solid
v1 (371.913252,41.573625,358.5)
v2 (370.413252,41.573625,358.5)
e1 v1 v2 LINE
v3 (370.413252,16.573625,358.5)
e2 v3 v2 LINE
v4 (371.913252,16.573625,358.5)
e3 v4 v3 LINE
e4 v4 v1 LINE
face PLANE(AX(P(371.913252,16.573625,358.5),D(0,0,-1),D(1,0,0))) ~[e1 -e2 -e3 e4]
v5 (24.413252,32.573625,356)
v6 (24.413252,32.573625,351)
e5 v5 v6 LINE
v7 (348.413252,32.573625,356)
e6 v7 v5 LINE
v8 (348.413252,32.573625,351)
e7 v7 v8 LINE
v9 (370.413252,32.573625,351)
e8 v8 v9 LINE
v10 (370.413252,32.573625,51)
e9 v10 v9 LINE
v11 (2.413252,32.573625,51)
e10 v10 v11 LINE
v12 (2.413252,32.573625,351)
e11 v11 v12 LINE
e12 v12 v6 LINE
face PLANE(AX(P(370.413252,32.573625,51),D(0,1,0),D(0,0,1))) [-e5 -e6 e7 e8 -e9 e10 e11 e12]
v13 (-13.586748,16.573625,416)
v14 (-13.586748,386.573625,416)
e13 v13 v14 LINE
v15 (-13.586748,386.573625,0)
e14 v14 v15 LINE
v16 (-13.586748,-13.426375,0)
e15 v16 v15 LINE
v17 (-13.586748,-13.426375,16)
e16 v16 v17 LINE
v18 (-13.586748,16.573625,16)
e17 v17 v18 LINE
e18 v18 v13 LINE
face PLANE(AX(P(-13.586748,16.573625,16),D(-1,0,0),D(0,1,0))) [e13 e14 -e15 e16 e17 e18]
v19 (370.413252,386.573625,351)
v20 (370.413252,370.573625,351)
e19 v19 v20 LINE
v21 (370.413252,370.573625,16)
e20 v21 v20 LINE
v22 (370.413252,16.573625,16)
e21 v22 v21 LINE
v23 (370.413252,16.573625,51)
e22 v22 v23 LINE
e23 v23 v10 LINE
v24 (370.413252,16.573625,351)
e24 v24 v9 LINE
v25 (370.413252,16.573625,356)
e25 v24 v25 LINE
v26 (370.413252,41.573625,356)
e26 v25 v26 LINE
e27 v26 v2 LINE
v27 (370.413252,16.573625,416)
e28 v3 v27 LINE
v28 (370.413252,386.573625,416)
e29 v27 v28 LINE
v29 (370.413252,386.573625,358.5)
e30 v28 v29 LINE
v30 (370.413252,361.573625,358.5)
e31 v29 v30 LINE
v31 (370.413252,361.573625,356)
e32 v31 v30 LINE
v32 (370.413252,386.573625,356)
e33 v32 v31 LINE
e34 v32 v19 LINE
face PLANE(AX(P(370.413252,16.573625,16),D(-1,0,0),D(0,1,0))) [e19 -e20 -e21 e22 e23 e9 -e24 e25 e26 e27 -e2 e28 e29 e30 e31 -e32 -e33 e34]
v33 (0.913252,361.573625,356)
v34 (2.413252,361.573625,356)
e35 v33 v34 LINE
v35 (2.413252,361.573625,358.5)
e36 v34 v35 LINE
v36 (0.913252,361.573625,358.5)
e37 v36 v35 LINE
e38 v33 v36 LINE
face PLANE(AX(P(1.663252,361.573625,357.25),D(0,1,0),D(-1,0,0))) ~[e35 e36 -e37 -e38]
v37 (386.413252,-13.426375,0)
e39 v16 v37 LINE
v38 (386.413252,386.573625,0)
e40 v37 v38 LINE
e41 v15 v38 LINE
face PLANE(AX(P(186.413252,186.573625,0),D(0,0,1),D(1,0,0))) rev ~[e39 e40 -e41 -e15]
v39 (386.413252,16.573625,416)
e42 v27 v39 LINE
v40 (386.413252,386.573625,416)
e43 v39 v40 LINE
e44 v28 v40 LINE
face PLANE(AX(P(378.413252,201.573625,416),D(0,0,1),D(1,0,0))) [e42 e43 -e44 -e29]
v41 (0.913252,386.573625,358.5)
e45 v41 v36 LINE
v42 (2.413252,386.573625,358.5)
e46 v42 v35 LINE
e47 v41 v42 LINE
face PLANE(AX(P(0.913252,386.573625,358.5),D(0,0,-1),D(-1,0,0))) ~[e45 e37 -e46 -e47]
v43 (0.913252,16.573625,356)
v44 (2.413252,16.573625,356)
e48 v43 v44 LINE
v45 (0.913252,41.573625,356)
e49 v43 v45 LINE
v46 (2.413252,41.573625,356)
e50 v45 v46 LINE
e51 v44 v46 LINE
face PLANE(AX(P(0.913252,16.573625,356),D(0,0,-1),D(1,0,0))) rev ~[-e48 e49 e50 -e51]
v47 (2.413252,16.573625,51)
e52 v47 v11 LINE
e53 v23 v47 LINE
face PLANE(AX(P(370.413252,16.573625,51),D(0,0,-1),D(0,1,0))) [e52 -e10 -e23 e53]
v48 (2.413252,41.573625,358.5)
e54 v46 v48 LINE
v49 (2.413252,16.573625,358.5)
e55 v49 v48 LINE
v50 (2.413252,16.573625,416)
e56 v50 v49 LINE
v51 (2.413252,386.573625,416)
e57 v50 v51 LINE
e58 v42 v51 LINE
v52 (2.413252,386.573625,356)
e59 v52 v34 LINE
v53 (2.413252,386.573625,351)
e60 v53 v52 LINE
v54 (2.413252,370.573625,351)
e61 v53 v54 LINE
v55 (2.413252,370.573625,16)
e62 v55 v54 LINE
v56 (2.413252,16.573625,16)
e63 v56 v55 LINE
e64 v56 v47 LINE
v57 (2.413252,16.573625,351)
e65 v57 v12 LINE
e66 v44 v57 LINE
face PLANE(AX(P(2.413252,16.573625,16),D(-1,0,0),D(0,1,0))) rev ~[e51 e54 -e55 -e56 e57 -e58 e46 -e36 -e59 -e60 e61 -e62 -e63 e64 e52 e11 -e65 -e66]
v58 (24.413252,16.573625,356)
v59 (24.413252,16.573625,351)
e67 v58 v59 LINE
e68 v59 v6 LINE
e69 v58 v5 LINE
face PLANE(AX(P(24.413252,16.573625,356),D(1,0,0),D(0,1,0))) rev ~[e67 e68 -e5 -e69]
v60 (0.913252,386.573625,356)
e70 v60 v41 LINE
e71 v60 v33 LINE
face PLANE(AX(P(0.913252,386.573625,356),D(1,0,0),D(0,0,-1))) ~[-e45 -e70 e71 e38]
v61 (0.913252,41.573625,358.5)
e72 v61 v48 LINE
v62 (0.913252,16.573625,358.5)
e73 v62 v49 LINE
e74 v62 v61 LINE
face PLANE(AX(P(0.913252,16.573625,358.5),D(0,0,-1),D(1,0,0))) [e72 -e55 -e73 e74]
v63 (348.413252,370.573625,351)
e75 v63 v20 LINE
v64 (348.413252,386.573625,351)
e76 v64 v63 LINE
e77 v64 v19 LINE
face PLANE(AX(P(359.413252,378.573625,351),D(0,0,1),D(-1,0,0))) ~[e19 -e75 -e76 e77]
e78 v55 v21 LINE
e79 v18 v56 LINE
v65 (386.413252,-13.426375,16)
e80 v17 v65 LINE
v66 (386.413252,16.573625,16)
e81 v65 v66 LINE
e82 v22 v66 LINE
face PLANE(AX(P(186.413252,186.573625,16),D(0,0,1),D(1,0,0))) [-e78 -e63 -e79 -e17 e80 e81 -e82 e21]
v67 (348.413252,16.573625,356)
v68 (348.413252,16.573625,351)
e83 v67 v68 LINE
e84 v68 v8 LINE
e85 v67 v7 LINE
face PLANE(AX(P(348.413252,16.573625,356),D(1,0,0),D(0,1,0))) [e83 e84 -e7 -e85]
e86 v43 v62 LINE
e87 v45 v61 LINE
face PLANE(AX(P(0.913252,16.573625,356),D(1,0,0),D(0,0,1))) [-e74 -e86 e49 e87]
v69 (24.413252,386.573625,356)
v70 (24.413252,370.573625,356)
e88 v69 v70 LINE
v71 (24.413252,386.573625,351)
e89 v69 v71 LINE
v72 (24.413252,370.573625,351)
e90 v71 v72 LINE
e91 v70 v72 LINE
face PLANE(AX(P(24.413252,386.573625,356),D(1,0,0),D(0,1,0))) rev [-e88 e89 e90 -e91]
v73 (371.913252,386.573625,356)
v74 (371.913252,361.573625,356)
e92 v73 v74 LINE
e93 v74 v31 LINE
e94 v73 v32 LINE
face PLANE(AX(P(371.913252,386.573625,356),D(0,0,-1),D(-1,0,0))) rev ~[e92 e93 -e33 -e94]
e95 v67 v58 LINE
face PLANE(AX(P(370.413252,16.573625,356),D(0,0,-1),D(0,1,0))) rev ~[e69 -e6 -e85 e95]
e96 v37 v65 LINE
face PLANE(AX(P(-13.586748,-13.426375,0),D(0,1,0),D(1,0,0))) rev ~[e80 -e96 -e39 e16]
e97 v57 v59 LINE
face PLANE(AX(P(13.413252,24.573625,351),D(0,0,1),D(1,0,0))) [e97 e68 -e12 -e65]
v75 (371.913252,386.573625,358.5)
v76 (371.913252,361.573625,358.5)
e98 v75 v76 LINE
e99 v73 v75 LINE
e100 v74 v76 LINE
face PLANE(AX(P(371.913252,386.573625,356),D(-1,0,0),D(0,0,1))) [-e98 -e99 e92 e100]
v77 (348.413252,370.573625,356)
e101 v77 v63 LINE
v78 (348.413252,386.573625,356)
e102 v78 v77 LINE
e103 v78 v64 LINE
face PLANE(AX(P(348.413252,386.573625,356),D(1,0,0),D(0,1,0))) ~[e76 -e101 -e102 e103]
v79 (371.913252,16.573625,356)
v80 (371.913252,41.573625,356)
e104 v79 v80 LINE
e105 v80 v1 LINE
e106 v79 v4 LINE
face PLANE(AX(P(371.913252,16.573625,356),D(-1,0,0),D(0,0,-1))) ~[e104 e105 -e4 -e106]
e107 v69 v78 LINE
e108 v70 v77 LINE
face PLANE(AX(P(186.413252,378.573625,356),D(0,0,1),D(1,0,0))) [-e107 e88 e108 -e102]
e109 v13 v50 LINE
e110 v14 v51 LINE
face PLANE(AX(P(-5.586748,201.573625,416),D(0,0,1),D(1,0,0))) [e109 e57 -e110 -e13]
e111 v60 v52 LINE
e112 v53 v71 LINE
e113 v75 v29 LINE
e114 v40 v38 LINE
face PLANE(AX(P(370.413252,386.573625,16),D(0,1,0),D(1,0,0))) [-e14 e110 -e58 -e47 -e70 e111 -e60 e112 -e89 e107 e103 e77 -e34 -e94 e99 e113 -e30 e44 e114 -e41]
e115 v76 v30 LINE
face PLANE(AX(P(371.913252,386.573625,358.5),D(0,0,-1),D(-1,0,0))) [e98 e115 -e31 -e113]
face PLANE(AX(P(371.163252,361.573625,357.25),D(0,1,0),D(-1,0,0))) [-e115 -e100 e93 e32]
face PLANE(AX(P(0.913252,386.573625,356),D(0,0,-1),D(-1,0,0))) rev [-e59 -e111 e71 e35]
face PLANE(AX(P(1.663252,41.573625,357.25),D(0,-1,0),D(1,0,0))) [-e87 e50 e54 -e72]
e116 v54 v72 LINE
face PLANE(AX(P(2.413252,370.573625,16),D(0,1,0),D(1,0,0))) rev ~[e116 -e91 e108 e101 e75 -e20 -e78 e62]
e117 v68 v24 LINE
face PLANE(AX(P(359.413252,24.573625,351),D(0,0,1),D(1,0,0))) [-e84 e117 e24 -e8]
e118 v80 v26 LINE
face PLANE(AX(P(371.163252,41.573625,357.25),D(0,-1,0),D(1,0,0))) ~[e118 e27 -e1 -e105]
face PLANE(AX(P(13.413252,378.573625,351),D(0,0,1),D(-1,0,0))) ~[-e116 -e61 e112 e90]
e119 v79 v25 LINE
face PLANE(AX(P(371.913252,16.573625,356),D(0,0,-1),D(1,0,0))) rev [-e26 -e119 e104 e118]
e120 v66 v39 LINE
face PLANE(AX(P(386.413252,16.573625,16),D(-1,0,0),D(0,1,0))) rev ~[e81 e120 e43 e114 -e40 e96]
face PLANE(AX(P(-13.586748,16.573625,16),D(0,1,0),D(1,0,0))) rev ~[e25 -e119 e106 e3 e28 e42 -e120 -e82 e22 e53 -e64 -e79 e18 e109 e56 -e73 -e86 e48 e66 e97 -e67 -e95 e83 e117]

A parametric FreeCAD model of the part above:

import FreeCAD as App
import Part
import Sketcher


def add_polygon(sketch, points):
    """Adds a closed chain of lines whose ends are joined by coincident constraints."""
    first, n = sketch.GeometryCount, len(points)
    for a, b in zip(points, points[1:] + points[:1]):
        sketch.addGeometry(Part.LineSegment(App.Vector(*a, 0), App.Vector(*b, 0)), False)
    for i in range(n):
        sketch.addConstraint(Sketcher.Constraint("Coincident", first + i, 2, first + (i + 1) % n, 1))

doc = App.newDocument("Part")
params = doc.addObject("Spreadsheet::Sheet", "Params")
for row, (alias, value) in enumerate([
    ("sketch1_width", "400 mm"),
    ("pad1_length", "16 mm"),
    ("sketch2_width", "16 mm"),
    ("sketch2_height", "370 mm"),
    ("pad2_length", "400 mm"),
    ("sketch3_width", "16 mm"),
    ("sketch3_height", "370 mm"),
    ("pad3_length", "400 mm"),
    ("sketch4_width", "368 mm"),
    ("sketch4_height", "16 mm"),
    ("pad4_length", "340 mm"),
    ("sketch5_width", "16 mm"),
    ("sketch5_height", "305 mm"),
    ("sketch6_width", "22 mm"),
    ("sketch6_height", "16 mm"),
    ("pocket1_length", "5 mm"),
    ("sketch7_width", "22 mm"),
    ("sketch7_height", "16 mm"),
    ("pocket2_length", "5 mm"),
    ("sketch8_width", "1.5 mm"),
    ("sketch8_height", "2.5 mm"),
    ("pocket3_length", "25 mm"),
    ("sketch9_width", "1.5 mm"),
    ("sketch9_height", "2.5 mm"),
    ("pocket4_length", "25 mm"),
    ("sketch10_width", "1.5 mm"),
    ("sketch10_height", "2.5 mm"),
    ("pocket5_length", "25 mm"),
    ("sketch11_width", "1.5 mm"),
    ("sketch11_height", "2.5 mm"),
    ("pocket6_length", "25 mm"),
    ("sketch12_width", "1.5 mm"),
    ("sketch12_height", "2.5 mm"),
    ("pocket7_length", "25 mm"),
], start=1):
    params.set(f"A{row}", alias)
    params.set(f"B{row}", "=" + value)
    params.setAlias(f"B{row}", alias)

body = doc.addObject("PartDesign::Body", "Body")

# Sketch on XY plane
sketch1 = body.newObject("Sketcher::SketchObject", "Sketch")
sketch1.AttachmentSupport = (doc.getObject("XY_Plane"), [""])
sketch1.MapMode = "FlatFace"
add_polygon(sketch1, [(-14, 387), (-14, -13), (386, -13), (386, 387)])  # lines 0-3
sketch1.addConstraint([
    Sketcher.Constraint("Vertical", 0),
    Sketcher.Constraint("Horizontal", 1),
    Sketcher.Constraint("Vertical", 2),
    Sketcher.Constraint("Horizontal", 3),
    Sketcher.Constraint("Equal", 3, 0),
    Sketcher.Constraint("DistanceX", 1, 1, 1, 2, 400.0),
    Sketcher.Constraint("DistanceX", 0, 2, -1, 1, 13.586748),
    Sketcher.Constraint("DistanceY", 0, 2, -1, 1, 13.426375),
])
sketch1.setExpression("Constraints[9]", "Params.sketch1_width")
pad1 = body.newObject("PartDesign::Pad", "Pad")
pad1.Profile = sketch1
pad1.setExpression("Length", "Params.pad1_length")

# Sketch on XY plane
sketch2 = body.newObject("Sketcher::SketchObject", "Sketch001")
sketch2.AttachmentSupport = (doc.getObject("XY_Plane"), [""])
sketch2.MapMode = "FlatFace"
sketch2.AttachmentOffset = App.Placement(App.Vector(0, 0, 16), App.Rotation())
add_polygon(sketch2, [(-14, 387), (-14, 17), (2, 17), (2, 387)])  # lines 0-3
sketch2.addConstraint([
    Sketcher.Constraint("Vertical", 0),
    Sketcher.Constraint("Horizontal", 1),
    Sketcher.Constraint("Vertical", 2),
    Sketcher.Constraint("Horizontal", 3),
    Sketcher.Constraint("DistanceX", 1, 1, 1, 2, 16.0),
    Sketcher.Constraint("DistanceY", 0, 2, 0, 1, 370.0),
    Sketcher.Constraint("DistanceX", 0, 2, -1, 1, 13.586748),
    Sketcher.Constraint("DistanceY", -1, 1, 0, 2, 16.573625),
])
sketch2.setExpression("Constraints[8]", "Params.sketch2_width")
sketch2.setExpression("Constraints[9]", "Params.sketch2_height")
pad2 = body.newObject("PartDesign::Pad", "Pad001")
pad2.Profile = sketch2
pad2.setExpression("Length", "Params.pad2_length")

# Sketch on XY plane
sketch3 = body.newObject("Sketcher::SketchObject", "Sketch002")
sketch3.AttachmentSupport = (doc.getObject("XY_Plane"), [""])
sketch3.MapMode = "FlatFace"
sketch3.AttachmentOffset = App.Placement(App.Vector(0, 0, 16), App.Rotation())
add_polygon(sketch3, [(370, 387), (370, 17), (386, 17), (386, 387)])  # lines 0-3
sketch3.addConstraint([
    Sketcher.Constraint("Vertical", 0),
    Sketcher.Constraint("Horizontal", 1),
    Sketcher.Constraint("Vertical", 2),
    Sketcher.Constraint("Horizontal", 3),
    Sketcher.Constraint("DistanceX", 1, 1, 1, 2, 16.0),
    Sketcher.Constraint("DistanceY", 0, 2, 0, 1, 370.0),
    Sketcher.Constraint("DistanceX", -1, 1, 0, 2, 370.413252),
    Sketcher.Constraint("DistanceY", -1, 1, 0, 2, 16.573625),
])
sketch3.setExpression("Constraints[8]", "Params.sketch3_width")
sketch3.setExpression("Constraints[9]", "Params.sketch3_height")
pad3 = body.newObject("PartDesign::Pad", "Pad002")
pad3.Profile = sketch3
pad3.setExpression("Length", "Params.pad3_length")

# Sketch on XY plane
sketch4 = body.newObject("Sketcher::SketchObject", "Sketch003")
sketch4.AttachmentSupport = (doc.getObject("XY_Plane"), [""])
sketch4.MapMode = "FlatFace"
sketch4.AttachmentOffset = App.Placement(App.Vector(0, 0, 16), App.Rotation())
add_polygon(sketch4, [(2, 387), (2, 371), (370, 371), (370, 387)])  # lines 0-3
sketch4.addConstraint([
    Sketcher.Constraint("Vertical", 0),
    Sketcher.Constraint("Horizontal", 1),
    Sketcher.Constraint("Vertical", 2),
    Sketcher.Constraint("Horizontal", 3),
    Sketcher.Constraint("DistanceX", 1, 1, 1, 2, 368.0),
    Sketcher.Constraint("DistanceY", 0, 2, 0, 1, 16.0),
    Sketcher.Constraint("DistanceX", -1, 1, 0, 2, 2.413252),
    Sketcher.Constraint("DistanceY", -1, 1, 0, 2, 370.573625),
])
sketch4.setExpression("Constraints[8]", "Params.sketch4_width")
sketch4.setExpression("Constraints[9]", "Params.sketch4_height")
pad4 = body.newObject("PartDesign::Pad", "Pad003")
pad4.Profile = sketch4
pad4.setExpression("Length", "Params.pad4_length")

# Sketch on YZ plane
sketch5 = body.newObject("Sketcher::SketchObject", "Sketch004")
sketch5.AttachmentSupport = (doc.getObject("YZ_Plane"), [""])
sketch5.MapMode = "FlatFace"
sketch5.AttachmentOffset = App.Placement(App.Vector(0, 0, 370.413252), App.Rotation())
add_polygon(sketch5, [(33, 51), (17, 51), (17, 356), (33, 356)])  # lines 0-3
sketch5.addConstraint([
    Sketcher.Constraint("Horizontal", 0),
    Sketcher.Constraint("Vertical", 1),
    Sketcher.Constraint("Horizontal", 2),
    Sketcher.Constraint("Vertical", 3),
    Sketcher.Constraint("DistanceX", 0, 2, 0, 1, 16.0),
    Sketcher.Constraint("DistanceY", 1, 1, 1, 2, 305.0),
    Sketcher.Constraint("DistanceY", -1, 1, 0, 2, 51.0),
    Sketcher.Constraint("DistanceX", -1, 1, 0, 2, 16.573625),
])
sketch5.setExpression("Constraints[8]", "Params.sketch5_width")
sketch5.setExpression("Constraints[9]", "Params.sketch5_height")
pad5 = body.newObject("PartDesign::Pad", "Pad004")
pad5.Profile = sketch5
pad5.Type = "UpToFirst"
pad5.Reversed = True

# Sketch on XY plane
sketch6 = body.newObject("Sketcher::SketchObject", "Sketch005")
sketch6.AttachmentSupport = (doc.getObject("XY_Plane"), [""])
sketch6.MapMode = "FlatFace"
sketch6.AttachmentOffset = App.Placement(App.Vector(0, 0, 356), App.Rotation())
add_polygon(sketch6, [(348, 33), (348, 17), (370, 17), (370, 33)])  # lines 0-3
sketch6.addConstraint([
    Sketcher.Constraint("Vertical", 0),
    Sketcher.Constraint("Horizontal", 1),
    Sketcher.Constraint("Vertical", 2),
    Sketcher.Constraint("Horizontal", 3),
    Sketcher.Constraint("DistanceX", 1, 1, 1, 2, 22.0),
    Sketcher.Constraint("DistanceY", 0, 2, 0, 1, 16.0),
    Sketcher.Constraint("DistanceX", -1, 1, 0, 2, 348.413252),
    Sketcher.Constraint("DistanceY", -1, 1, 0, 2, 16.573625),
])
sketch6.setExpression("Constraints[8]", "Params.sketch6_width")
sketch6.setExpression("Constraints[9]", "Params.sketch6_height")
pocket1 = body.newObject("PartDesign::Pocket", "Pocket")
pocket1.Profile = sketch6
pocket1.setExpression("Length", "Params.pocket1_length")

# Sketch on XY plane
sketch7 = body.newObject("Sketcher::SketchObject", "Sketch006")
sketch7.AttachmentSupport = (doc.getObject("XY_Plane"), [""])
sketch7.MapMode = "FlatFace"
sketch7.AttachmentOffset = App.Placement(App.Vector(0, 0, 356), App.Rotation())
add_polygon(sketch7, [(2, 33), (2, 17), (24, 17), (24, 33)])  # lines 0-3
sketch7.addConstraint([
    Sketcher.Constraint("Vertical", 0),
    Sketcher.Constraint("Horizontal", 1),
    Sketcher.Constraint("Vertical", 2),
    Sketcher.Constraint("Horizontal", 3),
    Sketcher.Constraint("DistanceX", 1, 1, 1, 2, 22.0),
    Sketcher.Constraint("DistanceY", 0, 2, 0, 1, 16.0),
    Sketcher.Constraint("DistanceX", -1, 1, 0, 2, 2.413252),
    Sketcher.Constraint("DistanceY", -1, 1, 0, 2, 16.573625),
])
sketch7.setExpression("Constraints[8]", "Params.sketch7_width")
sketch7.setExpression("Constraints[9]", "Params.sketch7_height")
pocket2 = body.newObject("PartDesign::Pocket", "Pocket001")
pocket2.Profile = sketch7
pocket2.setExpression("Length", "Params.pocket2_length")
doc.recompute()

datumplane = body.newObject("PartDesign::Plane", "DatumPlane")
datumplane.AttachmentSupport = (doc.getObject("XZ_Plane"), [""])
datumplane.MapMode = "FlatFace"
datumplane.AttachmentOffset = App.Placement(App.Vector(0, 0, -201.573625), App.Rotation())
mirrored = body.newObject("PartDesign::Mirrored", "Mirrored")
mirrored.Originals = [pocket1, pocket2]
mirrored.MirrorPlane = (datumplane, [""])
body.Tip = mirrored

# Sketch on XZ plane
sketch8 = body.newObject("Sketcher::SketchObject", "Sketch007")
sketch8.AttachmentSupport = (doc.getObject("XZ_Plane"), [""])
sketch8.MapMode = "FlatFace"
sketch8.AttachmentOffset = App.Placement(App.Vector(0, 0, -16.573625), App.Rotation())
add_polygon(sketch8, [(0.9, 358.5), (0.9, 356), (2.4, 356), (2.4, 358.5)])  # lines 0-3
sketch8.addConstraint([
    Sketcher.Constraint("Vertical", 0),
    Sketcher.Constraint("Horizontal", 1),
    Sketcher.Constraint("Vertical", 2),
    Sketcher.Constraint("Horizontal", 3),
    Sketcher.Constraint("DistanceX", 1, 1, 1, 2, 1.5),
    Sketcher.Constraint("DistanceY", 0, 2, 0, 1, 2.5),
    Sketcher.Constraint("DistanceY", -1, 1, 0, 2, 356.0),
    Sketcher.Constraint("DistanceX", -1, 1, 0, 2, 0.913252),
])
sketch8.setExpression("Constraints[8]", "Params.sketch8_width")
sketch8.setExpression("Constraints[9]", "Params.sketch8_height")
pocket3 = body.newObject("PartDesign::Pocket", "Pocket002")
pocket3.Profile = sketch8
pocket3.setExpression("Length", "Params.pocket3_length")
doc.recompute()

datumplane2 = body.newObject("PartDesign::Plane", "DatumPlane001")
datumplane2.AttachmentSupport = (doc.getObject("XZ_Plane"), [""])
datumplane2.MapMode = "FlatFace"
datumplane2.AttachmentOffset = App.Placement(App.Vector(0, 0, -201.573625), App.Rotation())
mirrored2 = body.newObject("PartDesign::Mirrored", "Mirrored001")
mirrored2.Originals = [pocket3]
mirrored2.MirrorPlane = (datumplane2, [""])
body.Tip = mirrored2
doc.recompute()

datumplane3 = body.newObject("PartDesign::Plane", "DatumPlane002")
datumplane3.AttachmentSupport = (doc.getObject("YZ_Plane"), [""])
datumplane3.MapMode = "FlatFace"
datumplane3.AttachmentOffset = App.Placement(App.Vector(0, 0, 186.413252), App.Rotation())
mirrored3 = body.newObject("PartDesign::Mirrored", "Mirrored002")
mirrored3.Originals = [pocket3]
mirrored3.MirrorPlane = (datumplane3, [""])
body.Tip = mirrored3

# Sketch on XZ plane
sketch9 = body.newObject("Sketcher::SketchObject", "Sketch008")
sketch9.AttachmentSupport = (doc.getObject("XZ_Plane"), [""])
sketch9.MapMode = "FlatFace"
sketch9.AttachmentOffset = App.Placement(App.Vector(0, 0, -16.573625), App.Rotation())
add_polygon(sketch9, [(0.9, 358.5), (0.9, 356), (2.4, 356), (2.4, 358.5)])  # lines 0-3
sketch9.addConstraint([
    Sketcher.Constraint("Vertical", 0),
    Sketcher.Constraint("Horizontal", 1),
    Sketcher.Constraint("Vertical", 2),
    Sketcher.Constraint("Horizontal", 3),
    Sketcher.Constraint("DistanceX", 1, 1, 1, 2, 1.5),
    Sketcher.Constraint("DistanceY", 0, 2, 0, 1, 2.5),
    Sketcher.Constraint("DistanceY", -1, 1, 0, 2, 356.0),
    Sketcher.Constraint("DistanceX", -1, 1, 0, 2, 0.913252),
])
sketch9.setExpression("Constraints[8]", "Params.sketch9_width")
sketch9.setExpression("Constraints[9]", "Params.sketch9_height")
pocket4 = body.newObject("PartDesign::Pocket", "Pocket003")
pocket4.Profile = sketch9
pocket4.setExpression("Length", "Params.pocket4_length")

# Sketch on XZ plane
sketch10 = body.newObject("Sketcher::SketchObject", "Sketch009")
sketch10.AttachmentSupport = (doc.getObject("XZ_Plane"), [""])
sketch10.MapMode = "FlatFace"
sketch10.AttachmentOffset = App.Placement(App.Vector(0, 0, -386.573625), App.Rotation())
add_polygon(sketch10, [(0.9, 356), (0.9, 358.5), (2.4, 358.5), (2.4, 356)])  # lines 0-3
sketch10.addConstraint([
    Sketcher.Constraint("Vertical", 0),
    Sketcher.Constraint("Horizontal", 1),
    Sketcher.Constraint("Vertical", 2),
    Sketcher.Constraint("Horizontal", 3),
    Sketcher.Constraint("DistanceX", 1, 1, 1, 2, 1.5),
    Sketcher.Constraint("DistanceY", 0, 1, 0, 2, 2.5),
    Sketcher.Constraint("DistanceY", -1, 1, 2, 2, 356.0),
    Sketcher.Constraint("DistanceX", -1, 1, 0, 2, 0.913252),
])
sketch10.setExpression("Constraints[8]", "Params.sketch10_width")
sketch10.setExpression("Constraints[9]", "Params.sketch10_height")
pocket5 = body.newObject("PartDesign::Pocket", "Pocket004")
pocket5.Profile = sketch10
pocket5.setExpression("Length", "Params.pocket5_length")
pocket5.Reversed = True

# Sketch on XZ plane
sketch11 = body.newObject("Sketcher::SketchObject", "Sketch010")
sketch11.AttachmentSupport = (doc.getObject("XZ_Plane"), [""])
sketch11.MapMode = "FlatFace"
sketch11.AttachmentOffset = App.Placement(App.Vector(0, 0, -386.573625), App.Rotation())
add_polygon(sketch11, [(371.9, 358.5), (371.9, 356), (370.4, 356), (370.4, 358.5)])  # lines 0-3
sketch11.addConstraint([
    Sketcher.Constraint("Vertical", 0),
    Sketcher.Constraint("Horizontal", 1),
    Sketcher.Constraint("Vertical", 2),
    Sketcher.Constraint("Horizontal", 3),
    Sketcher.Constraint("DistanceX", 1, 2, 1, 1, 1.5),
    Sketcher.Constraint("DistanceY", 0, 2, 0, 1, 2.5),
    Sketcher.Constraint("DistanceY", -1, 1, 0, 2, 356.0),
    Sketcher.Constraint("DistanceX", -1, 1, 0, 2, 371.913252),
])
sketch11.setExpression("Constraints[8]", "Params.sketch11_width")
sketch11.setExpression("Constraints[9]", "Params.sketch11_height")
pocket6 = body.newObject("PartDesign::Pocket", "Pocket005")
pocket6.Profile = sketch11
pocket6.setExpression("Length", "Params.pocket6_length")
pocket6.Reversed = True

# Sketch on XZ plane
sketch12 = body.newObject("Sketcher::SketchObject", "Sketch011")
sketch12.AttachmentSupport = (doc.getObject("XZ_Plane"), [""])
sketch12.MapMode = "FlatFace"
sketch12.AttachmentOffset = App.Placement(App.Vector(0, 0, -386.573625), App.Rotation())
add_polygon(sketch12, [(0.9, 356), (0.9, 358.5), (2.4, 358.5), (2.4, 356)])  # lines 0-3
sketch12.addConstraint([
    Sketcher.Constraint("Vertical", 0),
    Sketcher.Constraint("Horizontal", 1),
    Sketcher.Constraint("Vertical", 2),
    Sketcher.Constraint("Horizontal", 3),
    Sketcher.Constraint("DistanceX", 1, 1, 1, 2, 1.5),
    Sketcher.Constraint("DistanceY", 0, 1, 0, 2, 2.5),
    Sketcher.Constraint("DistanceY", -1, 1, 2, 2, 356.0),
    Sketcher.Constraint("DistanceX", -1, 1, 0, 2, 0.913252),
])
sketch12.setExpression("Constraints[8]", "Params.sketch12_width")
sketch12.setExpression("Constraints[9]", "Params.sketch12_height")
pocket7 = body.newObject("PartDesign::Pocket", "Pocket006")
pocket7.Profile = sketch12
pocket7.setExpression("Length", "Params.pocket7_length")
pocket7.Reversed = True

doc.recompute()
